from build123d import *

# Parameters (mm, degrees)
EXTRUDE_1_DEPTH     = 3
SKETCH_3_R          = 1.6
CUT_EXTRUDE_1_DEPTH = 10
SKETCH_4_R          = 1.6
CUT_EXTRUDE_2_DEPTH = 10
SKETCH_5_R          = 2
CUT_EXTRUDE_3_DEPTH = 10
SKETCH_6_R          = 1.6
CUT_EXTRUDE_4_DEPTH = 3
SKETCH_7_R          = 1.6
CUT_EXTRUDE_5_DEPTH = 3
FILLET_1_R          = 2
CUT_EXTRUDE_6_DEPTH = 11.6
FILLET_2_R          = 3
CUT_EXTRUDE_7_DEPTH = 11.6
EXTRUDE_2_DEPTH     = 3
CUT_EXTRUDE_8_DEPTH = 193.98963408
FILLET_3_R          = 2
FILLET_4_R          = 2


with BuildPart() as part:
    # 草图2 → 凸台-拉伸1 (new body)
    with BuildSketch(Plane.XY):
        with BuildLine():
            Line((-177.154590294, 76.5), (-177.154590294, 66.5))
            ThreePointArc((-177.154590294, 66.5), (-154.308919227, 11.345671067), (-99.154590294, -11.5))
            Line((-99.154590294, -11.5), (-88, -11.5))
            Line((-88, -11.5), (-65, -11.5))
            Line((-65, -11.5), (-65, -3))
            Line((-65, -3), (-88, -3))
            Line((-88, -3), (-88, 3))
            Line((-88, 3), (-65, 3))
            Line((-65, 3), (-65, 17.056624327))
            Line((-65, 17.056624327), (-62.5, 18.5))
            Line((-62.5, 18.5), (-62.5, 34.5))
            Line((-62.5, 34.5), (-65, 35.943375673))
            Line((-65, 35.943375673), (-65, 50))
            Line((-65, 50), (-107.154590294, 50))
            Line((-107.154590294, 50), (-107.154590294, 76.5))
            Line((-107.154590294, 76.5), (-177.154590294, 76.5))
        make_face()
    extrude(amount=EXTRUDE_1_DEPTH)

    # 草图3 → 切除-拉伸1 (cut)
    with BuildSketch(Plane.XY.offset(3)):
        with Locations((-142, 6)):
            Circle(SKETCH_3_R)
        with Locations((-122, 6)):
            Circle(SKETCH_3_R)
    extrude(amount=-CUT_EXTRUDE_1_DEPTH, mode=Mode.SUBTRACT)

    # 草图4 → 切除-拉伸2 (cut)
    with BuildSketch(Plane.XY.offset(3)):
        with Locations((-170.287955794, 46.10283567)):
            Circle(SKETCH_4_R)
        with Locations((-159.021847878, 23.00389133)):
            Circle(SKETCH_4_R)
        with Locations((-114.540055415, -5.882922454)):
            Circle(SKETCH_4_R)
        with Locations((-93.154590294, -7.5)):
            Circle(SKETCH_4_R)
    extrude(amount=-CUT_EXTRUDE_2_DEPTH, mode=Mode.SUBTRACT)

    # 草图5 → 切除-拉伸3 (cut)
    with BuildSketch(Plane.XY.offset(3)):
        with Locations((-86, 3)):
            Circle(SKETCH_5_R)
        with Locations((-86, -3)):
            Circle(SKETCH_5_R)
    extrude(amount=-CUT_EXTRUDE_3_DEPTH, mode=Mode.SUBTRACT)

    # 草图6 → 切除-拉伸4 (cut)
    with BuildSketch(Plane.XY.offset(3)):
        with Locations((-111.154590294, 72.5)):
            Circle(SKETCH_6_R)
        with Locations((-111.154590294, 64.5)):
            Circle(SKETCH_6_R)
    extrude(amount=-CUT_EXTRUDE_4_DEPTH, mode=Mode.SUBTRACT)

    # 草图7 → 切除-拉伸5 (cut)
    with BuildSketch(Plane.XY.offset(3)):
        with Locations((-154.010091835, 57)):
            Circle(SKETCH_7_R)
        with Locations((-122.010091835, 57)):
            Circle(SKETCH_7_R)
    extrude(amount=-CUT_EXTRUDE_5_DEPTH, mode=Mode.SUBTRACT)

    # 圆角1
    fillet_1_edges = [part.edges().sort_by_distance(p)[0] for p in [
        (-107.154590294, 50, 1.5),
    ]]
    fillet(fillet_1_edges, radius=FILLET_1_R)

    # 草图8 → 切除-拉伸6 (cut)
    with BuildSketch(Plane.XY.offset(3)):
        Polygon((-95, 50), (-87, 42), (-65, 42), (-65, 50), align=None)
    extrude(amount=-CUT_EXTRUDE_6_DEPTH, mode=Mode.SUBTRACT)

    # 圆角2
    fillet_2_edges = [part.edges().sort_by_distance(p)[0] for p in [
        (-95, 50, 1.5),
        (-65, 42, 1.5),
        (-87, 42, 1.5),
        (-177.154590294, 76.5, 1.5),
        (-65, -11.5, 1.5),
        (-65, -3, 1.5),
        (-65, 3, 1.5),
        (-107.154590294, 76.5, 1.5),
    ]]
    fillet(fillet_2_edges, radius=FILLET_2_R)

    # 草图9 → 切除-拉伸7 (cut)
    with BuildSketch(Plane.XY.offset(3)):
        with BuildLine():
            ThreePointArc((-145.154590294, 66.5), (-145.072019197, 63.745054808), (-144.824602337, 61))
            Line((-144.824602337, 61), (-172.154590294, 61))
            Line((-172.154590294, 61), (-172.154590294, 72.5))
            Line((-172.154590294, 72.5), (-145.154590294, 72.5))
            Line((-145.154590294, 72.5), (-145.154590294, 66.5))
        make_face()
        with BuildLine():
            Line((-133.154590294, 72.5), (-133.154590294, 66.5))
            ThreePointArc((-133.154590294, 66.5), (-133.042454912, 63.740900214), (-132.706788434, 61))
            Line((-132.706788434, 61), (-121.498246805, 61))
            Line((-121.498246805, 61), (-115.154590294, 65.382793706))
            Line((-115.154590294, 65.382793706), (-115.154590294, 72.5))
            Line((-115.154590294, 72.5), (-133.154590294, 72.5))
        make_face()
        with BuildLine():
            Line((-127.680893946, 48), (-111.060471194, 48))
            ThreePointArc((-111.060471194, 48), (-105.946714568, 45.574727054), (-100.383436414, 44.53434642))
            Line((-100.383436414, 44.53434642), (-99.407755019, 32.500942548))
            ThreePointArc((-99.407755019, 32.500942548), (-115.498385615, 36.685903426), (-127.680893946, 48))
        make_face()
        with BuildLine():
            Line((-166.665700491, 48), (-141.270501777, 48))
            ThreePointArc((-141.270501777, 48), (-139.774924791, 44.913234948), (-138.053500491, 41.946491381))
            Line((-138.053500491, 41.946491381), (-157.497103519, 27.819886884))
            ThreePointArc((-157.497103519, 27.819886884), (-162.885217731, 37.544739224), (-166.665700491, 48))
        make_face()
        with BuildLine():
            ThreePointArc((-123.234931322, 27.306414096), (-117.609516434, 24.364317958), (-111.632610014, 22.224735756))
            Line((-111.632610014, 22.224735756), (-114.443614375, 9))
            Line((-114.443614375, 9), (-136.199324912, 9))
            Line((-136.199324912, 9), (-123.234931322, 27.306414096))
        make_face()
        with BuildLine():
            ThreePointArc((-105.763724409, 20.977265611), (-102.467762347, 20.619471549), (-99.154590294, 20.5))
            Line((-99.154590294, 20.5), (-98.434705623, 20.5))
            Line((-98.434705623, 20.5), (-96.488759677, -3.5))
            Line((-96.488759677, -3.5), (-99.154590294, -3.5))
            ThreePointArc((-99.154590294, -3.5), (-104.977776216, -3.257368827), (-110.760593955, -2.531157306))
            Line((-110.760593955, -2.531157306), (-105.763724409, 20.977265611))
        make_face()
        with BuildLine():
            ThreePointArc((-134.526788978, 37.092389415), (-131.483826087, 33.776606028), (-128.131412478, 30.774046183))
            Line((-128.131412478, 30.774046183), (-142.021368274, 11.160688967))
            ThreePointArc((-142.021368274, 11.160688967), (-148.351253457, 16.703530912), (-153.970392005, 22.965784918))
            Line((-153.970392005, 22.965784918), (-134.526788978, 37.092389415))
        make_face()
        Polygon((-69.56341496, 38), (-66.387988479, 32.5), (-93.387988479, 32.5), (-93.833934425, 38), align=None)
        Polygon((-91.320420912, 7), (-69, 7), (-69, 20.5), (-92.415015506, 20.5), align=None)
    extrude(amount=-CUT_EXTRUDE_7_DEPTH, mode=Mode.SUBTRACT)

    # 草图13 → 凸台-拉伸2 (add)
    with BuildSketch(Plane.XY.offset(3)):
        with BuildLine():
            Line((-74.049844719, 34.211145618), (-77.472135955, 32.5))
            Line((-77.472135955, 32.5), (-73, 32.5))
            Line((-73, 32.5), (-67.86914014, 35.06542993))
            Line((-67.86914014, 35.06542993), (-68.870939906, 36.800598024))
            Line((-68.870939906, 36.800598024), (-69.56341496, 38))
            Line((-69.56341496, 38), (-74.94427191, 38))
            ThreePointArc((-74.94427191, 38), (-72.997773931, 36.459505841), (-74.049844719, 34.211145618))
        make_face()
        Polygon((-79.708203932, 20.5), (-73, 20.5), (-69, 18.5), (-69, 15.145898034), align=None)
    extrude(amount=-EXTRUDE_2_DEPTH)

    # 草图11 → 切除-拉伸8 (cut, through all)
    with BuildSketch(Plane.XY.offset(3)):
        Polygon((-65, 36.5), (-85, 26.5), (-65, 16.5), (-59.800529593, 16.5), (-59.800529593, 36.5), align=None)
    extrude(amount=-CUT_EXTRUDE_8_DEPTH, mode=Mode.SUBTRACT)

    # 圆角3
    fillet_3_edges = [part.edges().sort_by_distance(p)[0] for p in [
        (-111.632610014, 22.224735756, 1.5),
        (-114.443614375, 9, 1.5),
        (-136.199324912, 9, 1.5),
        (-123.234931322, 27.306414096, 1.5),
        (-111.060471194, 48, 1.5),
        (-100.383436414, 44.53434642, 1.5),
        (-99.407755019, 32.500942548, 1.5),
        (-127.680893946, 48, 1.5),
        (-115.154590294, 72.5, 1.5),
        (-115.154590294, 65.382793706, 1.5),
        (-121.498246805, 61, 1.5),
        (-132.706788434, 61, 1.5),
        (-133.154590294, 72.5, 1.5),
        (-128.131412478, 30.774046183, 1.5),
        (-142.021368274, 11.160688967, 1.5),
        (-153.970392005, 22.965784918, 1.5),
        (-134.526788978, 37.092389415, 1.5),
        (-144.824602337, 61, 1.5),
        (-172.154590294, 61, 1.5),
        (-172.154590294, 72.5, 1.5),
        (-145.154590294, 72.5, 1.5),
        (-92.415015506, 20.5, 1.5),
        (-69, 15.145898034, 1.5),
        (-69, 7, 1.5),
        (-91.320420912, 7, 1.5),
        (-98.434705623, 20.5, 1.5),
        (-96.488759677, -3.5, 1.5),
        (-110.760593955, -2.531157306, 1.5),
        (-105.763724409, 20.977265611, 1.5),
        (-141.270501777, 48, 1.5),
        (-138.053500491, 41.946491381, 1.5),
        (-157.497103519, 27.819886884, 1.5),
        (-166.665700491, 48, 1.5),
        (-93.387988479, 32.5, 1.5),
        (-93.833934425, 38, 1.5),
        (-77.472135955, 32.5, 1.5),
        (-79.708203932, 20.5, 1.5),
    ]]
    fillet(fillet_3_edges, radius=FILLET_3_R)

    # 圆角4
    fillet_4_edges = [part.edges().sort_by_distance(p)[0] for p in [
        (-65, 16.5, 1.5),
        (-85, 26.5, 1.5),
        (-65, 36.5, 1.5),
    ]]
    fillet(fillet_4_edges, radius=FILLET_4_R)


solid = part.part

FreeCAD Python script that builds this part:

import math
import FreeCAD as App
import Part
import Sketcher
Q = App.Units.Quantity


def edges_at(feature, points):
    """Names of the edges that pass closest to the given points."""
    edges = feature.Shape.Edges
    near = lambda p: min(range(len(edges)), key=lambda i: edges[i].distToShape(Part.Vertex(*p))[0])
    return sorted({f"Edge{near(p) + 1}" for p in points})

doc = App.newDocument("Part")
body = doc.addObject("PartDesign::Body", "Body")

# Sketch on XY plane
sketch1 = body.newObject("Sketcher::SketchObject", "Sketch")
sketch1.AttachmentSupport = (doc.getObject("XY_Plane"), [""])
sketch1.MapMode = "FlatFace"
sketch1.addGeometry(Part.LineSegment(App.Vector(-177.2, 76.5, 0), App.Vector(-177.2, 66.5, 0)), False)
sketch1.addGeometry(Part.ArcOfCircle(Part.Circle(App.Vector(-99.2, 66.5, 0), App.Vector(0, 0, 1), 78), math.radians(180), math.radians(270)), False)
sketch1.addGeometry(Part.LineSegment(App.Vector(-99.2, -11.5, 0), App.Vector(-65, -11.5, 0)), False)
sketch1.addGeometry(Part.LineSegment(App.Vector(-65, -11.5, 0), App.Vector(-65, -3, 0)), False)
sketch1.addGeometry(Part.LineSegment(App.Vector(-65, -3, 0), App.Vector(-88, -3, 0)), False)
sketch1.addGeometry(Part.LineSegment(App.Vector(-88, -3, 0), App.Vector(-88, 3, 0)), False)
sketch1.addGeometry(Part.LineSegment(App.Vector(-88, 3, 0), App.Vector(-65, 3, 0)), False)
sketch1.addGeometry(Part.LineSegment(App.Vector(-65, 3, 0), App.Vector(-65, 17.1, 0)), False)
sketch1.addGeometry(Part.LineSegment(App.Vector(-65, 17.1, 0), App.Vector(-62.5, 18.5, 0)), False)
sketch1.addGeometry(Part.LineSegment(App.Vector(-62.5, 18.5, 0), App.Vector(-62.5, 34.5, 0)), False)
sketch1.addGeometry(Part.LineSegment(App.Vector(-62.5, 34.5, 0), App.Vector(-65, 35.9, 0)), False)
sketch1.addGeometry(Part.LineSegment(App.Vector(-65, 35.9, 0), App.Vector(-65, 50, 0)), False)
sketch1.addGeometry(Part.LineSegment(App.Vector(-65, 50, 0), App.Vector(-107.2, 50, 0)), False)
sketch1.addGeometry(Part.LineSegment(App.Vector(-107.2, 50, 0), App.Vector(-107.2, 76.5, 0)), False)
sketch1.addGeometry(Part.LineSegment(App.Vector(-107.2, 76.5, 0), App.Vector(-177.2, 76.5, 0)), False)
sketch1.addConstraint(Sketcher.Constraint("Tangent", 0, 2, 1, 1))
sketch1.addConstraint(Sketcher.Constraint("Tangent", 1, 2, 2, 1))
sketch1.addConstraint(Sketcher.Constraint("Coincident", 2, 2, 3, 1))
sketch1.addConstraint(Sketcher.Constraint("Coincident", 3, 2, 4, 1))
sketch1.addConstraint(Sketcher.Constraint("Coincident", 4, 2, 5, 1))
sketch1.addConstraint(Sketcher.Constraint("Coincident", 5, 2, 6, 1))
sketch1.addConstraint(Sketcher.Constraint("Coincident", 6, 2, 7, 1))
sketch1.addConstraint(Sketcher.Constraint("Coincident", 7, 2, 8, 1))
sketch1.addConstraint(Sketcher.Constraint("Coincident", 8, 2, 9, 1))
sketch1.addConstraint(Sketcher.Constraint("Coincident", 9, 2, 10, 1))
sketch1.addConstraint(Sketcher.Constraint("Coincident", 10, 2, 11, 1))
sketch1.addConstraint(Sketcher.Constraint("Coincident", 11, 2, 12, 1))
sketch1.addConstraint(Sketcher.Constraint("Coincident", 12, 2, 13, 1))
sketch1.addConstraint(Sketcher.Constraint("Coincident", 13, 2, 14, 1))
sketch1.addConstraint(Sketcher.Constraint("Coincident", 14, 2, 0, 1))
sketch1.addConstraint(Sketcher.Constraint("Vertical", 0))
sketch1.addConstraint(Sketcher.Constraint("Horizontal", 2))
sketch1.addConstraint(Sketcher.Constraint("Vertical", 3))
sketch1.addConstraint(Sketcher.Constraint("Horizontal", 4))
sketch1.addConstraint(Sketcher.Constraint("Vertical", 5))
sketch1.addConstraint(Sketcher.Constraint("Horizontal", 6))
sketch1.addConstraint(Sketcher.Constraint("Vertical", 7))
sketch1.addConstraint(Sketcher.Constraint("Vertical", 9))
sketch1.addConstraint(Sketcher.Constraint("Vertical", 11))
sketch1.addConstraint(Sketcher.Constraint("Horizontal", 12))
sketch1.addConstraint(Sketcher.Constraint("Vertical", 13))
sketch1.addConstraint(Sketcher.Constraint("Horizontal", 14))
sketch1.addConstraint(Sketcher.Constraint("Symmetric", 3, 2, 6, 2, -1))
sketch1.addConstraint(Sketcher.Constraint("Vertical", 7, 2, 10, 2))
sketch1.addConstraint(Sketcher.Constraint("Equal", 7, 11))
sketch1.addConstraint(Sketcher.Constraint("Equal", 8, 10))
sketch1.addConstraint(Sketcher.Constraint("Radius", 1, 78.0))
sketch1.addConstraint(Sketcher.Constraint("DistanceX", 4, 2, 4, 1, 23.0))
sketch1.addConstraint(Sketcher.Constraint("DistanceX", 14, 2, 14, 1, 70.0))
sketch1.addConstraint(Sketcher.Constraint("DistanceY", 0, 2, 0, 1, 10.0))
sketch1.addConstraint(Sketcher.Constraint("DistanceY", 5, 1, 5, 2, 6.0))
sketch1.addConstraint(Sketcher.Constraint("DistanceY", 9, 1, 9, 2, 16.0))
sketch1.addConstraint(Sketcher.Constraint("Angle", 8, Q("30 deg")))
sketch1.addConstraint(Sketcher.Constraint("DistanceY", 3, 1, 3, 2, 8.5))
sketch1.addConstraint(Sketcher.Constraint("DistanceY", 13, 1, 13, 2, 26.5))
sketch1.addConstraint(Sketcher.Constraint("DistanceX", 2, 2, -1, 1, 65.0))
sketch1.addConstraint(Sketcher.Constraint("DistanceX", 8, 2, -1, 1, 62.5))
sketch1.addConstraint(Sketcher.Constraint("DistanceX", 2, 1, 2, 2, 34.15459))
pad1 = body.newObject("PartDesign::Pad", "Pad")
pad1.Profile = sketch1
pad1.Length = 3

# Sketch on XY plane
sketch2 = body.newObject("Sketcher::SketchObject", "Sketch001")
sketch2.AttachmentSupport = (doc.getObject("XY_Plane"), [""])
sketch2.MapMode = "FlatFace"
sketch2.AttachmentOffset = App.Placement(App.Vector(0, 0, 3), App.Rotation())
sketch2.addGeometry(Part.Circle(App.Vector(-142, 6, 0), App.Vector(0, 0, 1), 1.6), False)
sketch2.addGeometry(Part.Circle(App.Vector(-122, 6, 0), App.Vector(0, 0, 1), 1.6), False)
sketch2.addConstraint(Sketcher.Constraint("Equal", 0, 1))
sketch2.addConstraint(Sketcher.Constraint("Horizontal", 0, 3, 1, 3))
sketch2.addConstraint(Sketcher.Constraint("Diameter", 0, 3.2))
sketch2.addConstraint(Sketcher.Constraint("DistanceX", 0, 3, -1, 1, 142.0))
sketch2.addConstraint(Sketcher.Constraint("DistanceY", -1, 1, 0, 3, 6.0))
sketch2.addConstraint(Sketcher.Constraint("DistanceX", 1, 3, -1, 1, 122.0))
pocket1 = body.newObject("PartDesign::Pocket", "Pocket")
pocket1.Profile = sketch2
pocket1.Length = 10

# Sketch on XY plane
sketch3 = body.newObject("Sketcher::SketchObject", "Sketch002")
sketch3.AttachmentSupport = (doc.getObject("XY_Plane"), [""])
sketch3.MapMode = "FlatFace"
sketch3.AttachmentOffset = App.Placement(App.Vector(0, 0, 3), App.Rotation())
sketch3.addGeometry(Part.Circle(App.Vector(-170.3, 46.1, 0), App.Vector(0, 0, 1), 1.6), False)
sketch3.addGeometry(Part.Circle(App.Vector(-159, 23, 0), App.Vector(0, 0, 1), 1.6), False)
sketch3.addGeometry(Part.Circle(App.Vector(-114.5, -5.9, 0), App.Vector(0, 0, 1), 1.6), False)
sketch3.addGeometry(Part.Circle(App.Vector(-93.2, -7.5, 0), App.Vector(0, 0, 1), 1.6), False)
sketch3.addConstraint(Sketcher.Constraint("Equal", 0, 1))
sketch3.addConstraint(Sketcher.Constraint("Equal", 1, 2))
sketch3.addConstraint(Sketcher.Constraint("Equal", 2, 3))
sketch3.addConstraint(Sketcher.Constraint("Diameter", 0, 3.2))
sketch3.addConstraint(Sketcher.Constraint("DistanceY", 3, 3, -1, 1, 7.5))
sketch3.addConstraint(Sketcher.Constraint("DistanceX", 0, 3, 2, 3, 55.7479))
sketch3.addConstraint(Sketcher.Constraint("DistanceY", -1, 1, 1, 3, 23.003891))
sketch3.addConstraint(Sketcher.Constraint("DistanceX", 3, 3, -1, 1, 93.15459))
sketch3.addConstraint(Sketcher.Constraint("DistanceY", 2, 3, 0, 3, 51.985758))
sketch3.addConstraint(Sketcher.Constraint("DistanceX", 0, 3, -1, 1, 170.287956))
sketch3.addConstraint(Sketcher.Constraint("DistanceY", -1, 1, 0, 3, 46.102836))
sketch3.addConstraint(Sketcher.Constraint("DistanceX", 1, 3, -1, 1, 159.021848))
pocket2 = body.newObject("PartDesign::Pocket", "Pocket001")
pocket2.Profile = sketch3
pocket2.Length = 10

# Sketch on XY plane
sketch4 = body.newObject("Sketcher::SketchObject", "Sketch003")
sketch4.AttachmentSupport = (doc.getObject("XY_Plane"), [""])
sketch4.MapMode = "FlatFace"
sketch4.AttachmentOffset = App.Placement(App.Vector(0, 0, 3), App.Rotation())
sketch4.addGeometry(Part.Circle(App.Vector(-86, 3, 0), App.Vector(0, 0, 1), 2), False)
sketch4.addGeometry(Part.Circle(App.Vector(-86, -3, 0), App.Vector(0, 0, 1), 2), False)
sketch4.addConstraint(Sketcher.Constraint("Equal", 0, 1))
sketch4.addConstraint(Sketcher.Constraint("Symmetric", 0, 3, 1, 3, -1))
sketch4.addConstraint(Sketcher.Constraint("Diameter", 0, 4.0))
sketch4.addConstraint(Sketcher.Constraint("DistanceX", 0, 3, -1, 1, 86.0))
sketch4.addConstraint(Sketcher.Constraint("DistanceY", -1, 1, 0, 3, 3.0))
pocket3 = body.newObject("PartDesign::Pocket", "Pocket002")
pocket3.Profile = sketch4
pocket3.Length = 10

# Sketch on XY plane
sketch5 = body.newObject("Sketcher::SketchObject", "Sketch004")
sketch5.AttachmentSupport = (doc.getObject("XY_Plane"), [""])
sketch5.MapMode = "FlatFace"
sketch5.AttachmentOffset = App.Placement(App.Vector(0, 0, 3), App.Rotation())
sketch5.addGeometry(Part.Circle(App.Vector(-111.2, 72.5, 0), App.Vector(0, 0, 1), 1.6), False)
sketch5.addGeometry(Part.Circle(App.Vector(-111.2, 64.5, 0), App.Vector(0, 0, 1), 1.6), False)
sketch5.addConstraint(Sketcher.Constraint("Equal", 0, 1))
sketch5.addConstraint(Sketcher.Constraint("Vertical", 0, 3, 1, 3))
sketch5.addConstraint(Sketcher.Constraint("Diameter", 0, 3.2))
sketch5.addConstraint(Sketcher.Constraint("DistanceY", 1, 3, 0, 3, 8.0))
sketch5.addConstraint(Sketcher.Constraint("DistanceY", -1, 1, 0, 3, 72.5))
sketch5.addConstraint(Sketcher.Constraint("DistanceX", 0, 3, -1, 1, 111.15459))
pocket4 = body.newObject("PartDesign::Pocket", "Pocket003")
pocket4.Profile = sketch5
pocket4.Length = 3

# Sketch on XY plane
sketch6 = body.newObject("Sketcher::SketchObject", "Sketch005")
sketch6.AttachmentSupport = (doc.getObject("XY_Plane"), [""])
sketch6.MapMode = "FlatFace"
sketch6.AttachmentOffset = App.Placement(App.Vector(0, 0, 3), App.Rotation())
sketch6.addGeometry(Part.Circle(App.Vector(-154, 57, 0), App.Vector(0, 0, 1), 1.6), False)
sketch6.addGeometry(Part.Circle(App.Vector(-122, 57, 0), App.Vector(0, 0, 1), 1.6), False)
sketch6.addConstraint(Sketcher.Constraint("Equal", 0, 1))
sketch6.addConstraint(Sketcher.Constraint("Horizontal", 0, 3, 1, 3))
sketch6.addConstraint(Sketcher.Constraint("Diameter", 0, 3.2))
sketch6.addConstraint(Sketcher.Constraint("DistanceY", -1, 1, 0, 3, 57.0))
sketch6.addConstraint(Sketcher.Constraint("DistanceX", 0, 3, 1, 3, 32.0))
sketch6.addConstraint(Sketcher.Constraint("DistanceX", 0, 3, -1, 1, 154.010092))
pocket5 = body.newObject("PartDesign::Pocket", "Pocket004")
pocket5.Profile = sketch6
pocket5.Length = 3
doc.recompute()

fillet = body.newObject("PartDesign::Fillet", "Fillet")
fillet.Base = (pocket5, edges_at(pocket5, [(-107.155, 50, 1.5)]))
fillet.Radius = 2

# Sketch on XY plane
sketch7 = body.newObject("Sketcher::SketchObject", "Sketch006")
sketch7.AttachmentSupport = (doc.getObject("XY_Plane"), [""])
sketch7.MapMode = "FlatFace"
sketch7.AttachmentOffset = App.Placement(App.Vector(0, 0, 3), App.Rotation())
sketch7.addGeometry(Part.LineSegment(App.Vector(-95, 50, 0), App.Vector(-87, 42, 0)), False)
sketch7.addGeometry(Part.LineSegment(App.Vector(-87, 42, 0), App.Vector(-65, 42, 0)), False)
sketch7.addGeometry(Part.LineSegment(App.Vector(-65, 42, 0), App.Vector(-65, 50, 0)), False)
sketch7.addGeometry(Part.LineSegment(App.Vector(-65, 50, 0), App.Vector(-95, 50, 0)), False)
sketch7.addConstraint(Sketcher.Constraint("Coincident", 0, 2, 1, 1))
sketch7.addConstraint(Sketcher.Constraint("Coincident", 1, 2, 2, 1))
sketch7.addConstraint(Sketcher.Constraint("Coincident", 2, 2, 3, 1))
sketch7.addConstraint(Sketcher.Constraint("Coincident", 3, 2, 0, 1))
sketch7.addConstraint(Sketcher.Constraint("Horizontal", 1))
sketch7.addConstraint(Sketcher.Constraint("Vertical", 2))
sketch7.addConstraint(Sketcher.Constraint("Horizontal", 3))
sketch7.addConstraint(Sketcher.Constraint("DistanceX", 1, 1, 1, 2, 22.0))
sketch7.addConstraint(Sketcher.Constraint("DistanceX", 3, 2, 3, 1, 30.0))
sketch7.addConstraint(Sketcher.Constraint("DistanceY", 2, 1, 2, 2, 8.0))
sketch7.addConstraint(Sketcher.Constraint("DistanceX", 0, 2, -1, 1, 87.0))
sketch7.addConstraint(Sketcher.Constraint("DistanceY", -1, 1, 0, 2, 42.0))
pocket6 = body.newObject("PartDesign::Pocket", "Pocket005")
pocket6.Profile = sketch7
pocket6.Length = 11.6
doc.recompute()

fillet2 = body.newObject("PartDesign::Fillet", "Fillet001")
fillet2.Base = (pocket6, edges_at(pocket6, [
    (-95, 50, 1.5),
    (-65, 42, 1.5),
    (-87, 42, 1.5),
    (-177.155, 76.5, 1.5),
    (-65, -11.5, 1.5),
    (-65, -3, 1.5),
    (-65, 3, 1.5),
    (-107.155, 76.5, 1.5),
]))
fillet2.Radius = 3

# Sketch on XY plane
sketch8 = body.newObject("Sketcher::SketchObject", "Sketch007")
sketch8.AttachmentSupport = (doc.getObject("XY_Plane"), [""])
sketch8.MapMode = "FlatFace"
sketch8.AttachmentOffset = App.Placement(App.Vector(0, 0, 3), App.Rotation())
sketch8.addGeometry(Part.ArcOfCircle(Part.Circle(App.Vector(-99.2, 66.5, 0), App.Vector(0, 0, 1), 46), math.radians(180), math.radians(186.87)), False)
sketch8.addGeometry(Part.LineSegment(App.Vector(-145.2, 66.5, 0), App.Vector(-145.2, 72.5, 0)), False)
sketch8.addGeometry(Part.LineSegment(App.Vector(-145.2, 72.5, 0), App.Vector(-172.2, 72.5, 0)), False)
sketch8.addGeometry(Part.LineSegment(App.Vector(-172.2, 72.5, 0), App.Vector(-172.2, 61, 0)), False)
sketch8.addGeometry(Part.LineSegment(App.Vector(-172.2, 61, 0), App.Vector(-144.8, 61, 0)), False)
sketch8.addGeometry(Part.LineSegment(App.Vector(-133.2, 72.5, 0), App.Vector(-133.2, 66.5, 0)), False)
sketch8.addGeometry(Part.ArcOfCircle(Part.Circle(App.Vector(-99.2, 66.5, 0), App.Vector(0, 0, 1), 34), math.radians(-180), math.radians(-170.69)), False)
sketch8.addGeometry(Part.LineSegment(App.Vector(-132.7, 61, 0), App.Vector(-121.5, 61, 0)), False)
sketch8.addGeometry(Part.LineSegment(App.Vector(-121.5, 61, 0), App.Vector(-115.2, 65.4, 0)), False)
sketch8.addGeometry(Part.LineSegment(App.Vector(-115.2, 65.4, 0), App.Vector(-115.2, 72.5, 0)), False)
sketch8.addGeometry(Part.LineSegment(App.Vector(-115.2, 72.5, 0), App.Vector(-133.2, 72.5, 0)), False)
sketch8.addGeometry(Part.LineSegment(App.Vector(-111.1, 48, 0), App.Vector(-127.7, 48, 0)), False)
sketch8.addGeometry(Part.ArcOfCircle(Part.Circle(App.Vector(-99.2, 66.5, 0), App.Vector(0, 0, 1), 34), math.radians(-147), math.radians(-90)), False)
sketch8.addGeometry(Part.LineSegment(App.Vector(-99.4, 32.5, 0), App.Vector(-100.4, 44.5, 0)), False)
sketch8.addGeometry(Part.ArcOfCircle(Part.Circle(App.Vector(-99.2, 66.5, 0), App.Vector(0, 0, 1), 22), math.radians(-123), math.radians(-93)), False)
sketch8.addGeometry(Part.LineSegment(App.Vector(-141.3, 48, 0), App.Vector(-166.7, 48, 0)), False)
sketch8.addGeometry(Part.ArcOfCircle(Part.Circle(App.Vector(-99.2, 66.5, 0), App.Vector(0, 0, 1), 70), math.radians(-164.68), math.radians(-146.46)), False)
sketch8.addGeometry(Part.LineSegment(App.Vector(-157.5, 27.8, 0), App.Vector(-138.1, 41.9, 0)), False)
sketch8.addGeometry(Part.ArcOfCircle(Part.Circle(App.Vector(-99.2, 66.5, 0), App.Vector(0, 0, 1), 46), math.radians(-156.29), math.radians(-147.74)), False)
sketch8.addGeometry(Part.ArcOfCircle(Part.Circle(App.Vector(-99.2, 66.5, 0), App.Vector(0, 0, 1), 46), math.radians(-121.57), math.radians(-105.74)), False)
sketch8.addGeometry(Part.LineSegment(App.Vector(-123.2, 27.3, 0), App.Vector(-136.2, 9, 0)), False)
sketch8.addGeometry(Part.LineSegment(App.Vector(-136.2, 9, 0), App.Vector(-114.4, 9, 0)), False)
sketch8.addGeometry(Part.LineSegment(App.Vector(-114.4, 9, 0), App.Vector(-111.6, 22.2, 0)), False)
sketch8.addGeometry(Part.ArcOfCircle(Part.Circle(App.Vector(-99.2, 66.5, 0), App.Vector(0, 0, 1), 46), math.radians(-98.26), math.radians(-90)), False)
sketch8.addGeometry(Part.LineSegment(App.Vector(-105.8, 21, 0), App.Vector(-110.8, -2.5, 0)), False)
sketch8.addGeometry(Part.ArcOfCircle(Part.Circle(App.Vector(-99.2, 66.5, 0), App.Vector(0, 0, 1), 70), math.radians(-99.54), math.radians(-90)), False)
sketch8.addGeometry(Part.LineSegment(App.Vector(-99.2, -3.5, 0), App.Vector(-96.5, -3.5, 0)), False)
sketch8.addGeometry(Part.LineSegment(App.Vector(-96.5, -3.5, 0), App.Vector(-98.4, 20.5, 0)), False)
sketch8.addGeometry(Part.LineSegment(App.Vector(-98.4, 20.5, 0), App.Vector(-99.2, 20.5, 0)), False)
sketch8.addGeometry(Part.ArcOfCircle(Part.Circle(App.Vector(-99.2, 66.5, 0), App.Vector(0, 0, 1), 46), math.radians(-140.26), math.radians(-129.05)), False)
sketch8.addGeometry(Part.LineSegment(App.Vector(-134.5, 37.1, 0), App.Vector(-154, 23, 0)), False)
sketch8.addGeometry(Part.ArcOfCircle(Part.Circle(App.Vector(-99.2, 66.5, 0), App.Vector(0, 0, 1), 70), math.radians(-141.54), math.radians(-127.76)), False)
sketch8.addGeometry(Part.LineSegment(App.Vector(-142, 11.2, 0), App.Vector(-128.1, 30.8, 0)), False)
sketch8.addGeometry(Part.LineSegment(App.Vector(-66.4, 32.5, 0), App.Vector(-69.6, 38, 0)), False)
sketch8.addGeometry(Part.LineSegment(App.Vector(-69.6, 38, 0), App.Vector(-93.8, 38, 0)), False)
sketch8.addGeometry(Part.LineSegment(App.Vector(-93.8, 38, 0), App.Vector(-93.4, 32.5, 0)), False)
sketch8.addGeometry(Part.LineSegment(App.Vector(-93.4, 32.5, 0), App.Vector(-66.4, 32.5, 0)), False)
sketch8.addGeometry(Part.LineSegment(App.Vector(-91.3, 7, 0), App.Vector(-69, 7, 0)), False)
sketch8.addGeometry(Part.LineSegment(App.Vector(-69, 7, 0), App.Vector(-69, 20.5, 0)), False)
sketch8.addGeometry(Part.LineSegment(App.Vector(-69, 20.5, 0), App.Vector(-92.4, 20.5, 0)), False)
sketch8.addGeometry(Part.LineSegment(App.Vector(-92.4, 20.5, 0), App.Vector(-91.3, 7, 0)), False)
sketch8.addConstraint(Sketcher.Constraint("Tangent", 0, 1, 1, 1))
sketch8.addConstraint(Sketcher.Constraint("Coincident", 1, 2, 2, 1))
sketch8.addConstraint(Sketcher.Constraint("Coincident", 2, 2, 3, 1))
sketch8.addConstraint(Sketcher.Constraint("Coincident", 3, 2, 4, 1))
sketch8.addConstraint(Sketcher.Constraint("Coincident", 4, 2, 0, 2))
sketch8.addConstraint(Sketcher.Constraint("Tangent", 5, 2, 6, 1))
sketch8.addConstraint(Sketcher.Constraint("Coincident", 6, 2, 7, 1))
sketch8.addConstraint(Sketcher.Constraint("Coincident", 7, 2, 8, 1))
sketch8.addConstraint(Sketcher.Constraint("Coincident", 8, 2, 9, 1))
sketch8.addConstraint(Sketcher.Constraint("Coincident", 9, 2, 10, 1))
sketch8.addConstraint(Sketcher.Constraint("Coincident", 10, 2, 5, 1))
sketch8.addConstraint(Sketcher.Constraint("Coincident", 11, 2, 12, 1))
sketch8.addConstraint(Sketcher.Constraint("Coincident", 12, 2, 13, 1))
sketch8.addConstraint(Sketcher.Constraint("Coincident", 13, 2, 14, 2))
sketch8.addConstraint(Sketcher.Constraint("Coincident", 14, 1, 11, 1))
sketch8.addConstraint(Sketcher.Constraint("Coincident", 15, 2, 16, 1))
sketch8.addConstraint(Sketcher.Constraint("Coincident", 16, 2, 17, 1))
sketch8.addConstraint(Sketcher.Constraint("Coincident", 17, 2, 18, 2))
sketch8.addConstraint(Sketcher.Constraint("Coincident", 18, 1, 15, 1))
sketch8.addConstraint(Sketcher.Constraint("Coincident", 19, 1, 20, 1))
sketch8.addConstraint(Sketcher.Constraint("Coincident", 20, 2, 21, 1))
sketch8.addConstraint(Sketcher.Constraint("Coincident", 21, 2, 22, 1))
sketch8.addConstraint(Sketcher.Constraint("Coincident", 22, 2, 19, 2))
sketch8.addConstraint(Sketcher.Constraint("Coincident", 23, 1, 24, 1))
sketch8.addConstraint(Sketcher.Constraint("Coincident", 24, 2, 25, 1))
sketch8.addConstraint(Sketcher.Constraint("Tangent", 25, 2, 26, 1))
sketch8.addConstraint(Sketcher.Constraint("Coincident", 26, 2, 27, 1))
sketch8.addConstraint(Sketcher.Constraint("Coincident", 27, 2, 28, 1))
sketch8.addConstraint(Sketcher.Constraint("Tangent", 28, 2, 23, 2))
sketch8.addConstraint(Sketcher.Constraint("Coincident", 29, 1, 30, 1))
sketch8.addConstraint(Sketcher.Constraint("Coincident", 30, 2, 31, 1))
sketch8.addConstraint(Sketcher.Constraint("Coincident", 31, 2, 32, 1))
sketch8.addConstraint(Sketcher.Constraint("Coincident", 32, 2, 29, 2))
sketch8.addConstraint(Sketcher.Constraint("Coincident", 33, 2, 34, 1))
sketch8.addConstraint(Sketcher.Constraint("Coincident", 34, 2, 35, 1))
sketch8.addConstraint(Sketcher.Constraint("Coincident", 35, 2, 36, 1))
sketch8.addConstraint(Sketcher.Constraint("Coincident", 36, 2, 33, 1))
sketch8.addConstraint(Sketcher.Constraint("Coincident", 37, 2, 38, 1))
sketch8.addConstraint(Sketcher.Constraint("Coincident", 38, 2, 39, 1))
sketch8.addConstraint(Sketcher.Constraint("Coincident", 39, 2, 40, 1))
sketch8.addConstraint(Sketcher.Constraint("Coincident", 40, 2, 37, 1))
sketch8.addConstraint(Sketcher.Constraint("Vertical", 1))
sketch8.addConstraint(Sketcher.Constraint("Horizontal", 2))
sketch8.addConstraint(Sketcher.Constraint("Vertical", 3))
sketch8.addConstraint(Sketcher.Constraint("Horizontal", 4))
sketch8.addConstraint(Sketcher.Constraint("Vertical", 5))
sketch8.addConstraint(Sketcher.Constraint("Horizontal", 7))
sketch8.addConstraint(Sketcher.Constraint("Vertical", 9))
sketch8.addConstraint(Sketcher.Constraint("Horizontal", 10))
sketch8.addConstraint(Sketcher.Constraint("Horizontal", 11))
sketch8.addConstraint(Sketcher.Constraint("Horizontal", 15))
sketch8.addConstraint(Sketcher.Constraint("Horizontal", 21))
sketch8.addConstraint(Sketcher.Constraint("Horizontal", 26))
sketch8.addConstraint(Sketcher.Constraint("Horizontal", 28))
sketch8.addConstraint(Sketcher.Constraint("Horizontal", 34))
sketch8.addConstraint(Sketcher.Constraint("Horizontal", 36))
sketch8.addConstraint(Sketcher.Constraint("Horizontal", 37))
sketch8.addConstraint(Sketcher.Constraint("Vertical", 38))
sketch8.addConstraint(Sketcher.Constraint("Horizontal", 39))
sketch8.addConstraint(Sketcher.Constraint("Coincident", 6, 3, 0, 3))
sketch8.addConstraint(Sketcher.Constraint("Coincident", 12, 3, 0, 3))
sketch8.addConstraint(Sketcher.Constraint("Coincident", 14, 3, 0, 3))
sketch8.addConstraint(Sketcher.Constraint("Coincident", 16, 3, 0, 3))
sketch8.addConstraint(Sketcher.Constraint("Coincident", 18, 3, 0, 3))
sketch8.addConstraint(Sketcher.Constraint("Coincident", 19, 3, 0, 3))
sketch8.addConstraint(Sketcher.Constraint("Coincident", 23, 3, 0, 3))
sketch8.addConstraint(Sketcher.Constraint("Coincident", 25, 3, 0, 3))
sketch8.addConstraint(Sketcher.Constraint("Coincident", 29, 3, 0, 3))
sketch8.addConstraint(Sketcher.Constraint("Coincident", 31, 3, 0, 3))
sketch8.addConstraint(Sketcher.Constraint("Equal", 6, 12))
sketch8.addConstraint(Sketcher.Constraint("Equal", 0, 18))
sketch8.addConstraint(Sketcher.Constraint("Equal", 18, 19))
sketch8.addConstraint(Sketcher.Constraint("Equal", 19, 23))
sketch8.addConstraint(Sketcher.Constraint("Equal", 16, 25))
sketch8.addConstraint(Sketcher.Constraint("Equal", 23, 29))
sketch8.addConstraint(Sketcher.Constraint("Equal", 25, 31))
sketch8.addConstraint(Sketcher.Constraint("Parallel", 22, 24))
sketch8.addConstraint(Sketcher.Constraint("Parallel", 13, 27))
sketch8.addConstraint(Sketcher.Constraint("Parallel", 17, 30))
sketch8.addConstraint(Sketcher.Constraint("Parallel", 20, 32))
sketch8.addConstraint(Sketcher.Constraint("Parallel", 27, 35))
sketch8.addConstraint(Sketcher.Constraint("Parallel", 35, 40))
sketch8.addConstraint(Sketcher.Constraint("Horizontal", 4, 2, 6, 2))
sketch8.addConstraint(Sketcher.Constraint("Horizontal", 2, 2, 9, 2))
sketch8.addConstraint(Sketcher.Constraint("Horizontal", 14, 1, 15, 2))
sketch8.addConstraint(Sketcher.Constraint("Horizontal", 28, 2, 38, 2))
sketch8.addConstraint(Sketcher.Constraint("Equal", 2, 36))
sketch8.addConstraint(Sketcher.Constraint("Equal", 17, 24))
sketch8.addConstraint(Sketcher.Constraint("Equal", 24, 30))
sketch8.addConstraint(Sketcher.Constraint("Equal", 30, 32))
sketch8.addConstraint(Sketcher.Constraint("Radius", 0, 46.0))
sketch8.addConstraint(Sketcher.Constraint("Radius", 6, 34.0))
sketch8.addConstraint(Sketcher.Constraint("Radius", 14, 22.0))
sketch8.addConstraint(Sketcher.Constraint("Radius", 16, 70.0))
sketch8.addConstraint(Sketcher.Constraint("DistanceX", 2, 2, 2, 1, 27.0))
sketch8.addConstraint(Sketcher.Constraint("DistanceX", 10, 2, 10, 1, 18.0))
sketch8.addConstraint(Sketcher.Constraint("DistanceY", 1, 1, 1, 2, 6.0))
sketch8.addConstraint(Sketcher.Constraint("Angle", 17, Q("36 deg")))
sketch8.addConstraint(Sketcher.Constraint("Angle", 22, Q("78 deg")))
sketch8.addConstraint(Sketcher.Constraint("Angle", 33, Q("120 deg")))
sketch8.addConstraint(Sketcher.Constraint("DistanceY", 3, 2, 3, 1, 11.5))
sketch8.addConstraint(Sketcher.Constraint("DistanceY", 38, 1, 38, 2, 13.5))
sketch8.addConstraint(Sketcher.Constraint("DistanceY", -1, 1, 3, 2, 61.0))
sketch8.addConstraint(Sketcher.Constraint("DistanceY", -1, 1, 11, 2, 48.0))
sketch8.addConstraint(Sketcher.Constraint("DistanceY", -1, 1, 20, 2, 9.0))
sketch8.addConstraint(Sketcher.Constraint("DistanceY", -1, 1, 33, 2, 38.0))
sketch8.addConstraint(Sketcher.Constraint("DistanceX", 37, 2, -1, 1, 69.0))
sketch8.addConstraint(Sketcher.Constraint("DistanceY", 27, 2, 35, 2, 12.0))
sketch8.addConstraint(Sketcher.Constraint("DistanceX", 29, 1, 6, 2, 1.820001))
sketch8.addConstraint(Sketcher.Constraint("DistanceX", 7, 1, 7, 2, 11.208542))
sketch8.addConstraint(Sketcher.Constraint("DistanceX", 21, 1, 21, 2, 21.755711))
sketch8.addConstraint(Sketcher.Constraint("DistanceX", 26, 1, 26, 2, 2.665831))
sketch8.addConstraint(Sketcher.Constraint("DistanceX", 34, 2, 34, 1, 24.270519))
sketch8.addConstraint(Sketcher.Constraint("DistanceX", 37, 1, 37, 2, 22.320421))
sketch8.addConstraint(Sketcher.Constraint("DistanceX", 15, 2, -1, 1, 166.6657))
sketch8.addConstraint(Sketcher.Constraint("DistanceY", 31, 2, 29, 1, 25.9317))
sketch8.addConstraint(Sketcher.Constraint("DistanceX", 13, 2, 34, 2, 6.549502))
sketch8.addConstraint(Sketcher.Constraint("DistanceX", 28, 2, 35, 2, 5.766602))
sketch8.addConstraint(Sketcher.Constraint("Distance", 8, 7.710438))
sketch8.addConstraint(Sketcher.Constraint("DistanceX", 19, 1, -1, 1, 123.234931))
pocket7 = body.newObject("PartDesign::Pocket", "Pocket006")
pocket7.Profile = sketch8
pocket7.Length = 11.6

# Sketch on XY plane
sketch9 = body.newObject("Sketcher::SketchObject", "Sketch008")
sketch9.AttachmentSupport = (doc.getObject("XY_Plane"), [""])
sketch9.MapMode = "FlatFace"
sketch9.AttachmentOffset = App.Placement(App.Vector(0, 0, 3), App.Rotation())
sketch9.addGeometry(Part.LineSegment(App.Vector(-74, 34.2, 0), App.Vector(-77.5, 32.5, 0)), False)
sketch9.addGeometry(Part.LineSegment(App.Vector(-77.5, 32.5, 0), App.Vector(-73, 32.5, 0)), False)
sketch9.addGeometry(Part.LineSegment(App.Vector(-73, 32.5, 0), App.Vector(-67.9, 35.1, 0)), False)
sketch9.addGeometry(Part.LineSegment(App.Vector(-67.9, 35.1, 0), App.Vector(-68.9, 36.8, 0)), False)
sketch9.addGeometry(Part.LineSegment(App.Vector(-68.9, 36.8, 0), App.Vector(-69.6, 38, 0)), False)
sketch9.addGeometry(Part.LineSegment(App.Vector(-69.6, 38, 0), App.Vector(-74.9, 38, 0)), False)
sketch9.addGeometry(Part.ArcOfCircle(Part.Circle(App.Vector(-74.9, 36, 0), App.Vector(0, 0, 1), 2), math.radians(-63), math.radians(90)), False)
sketch9.addGeometry(Part.LineSegment(App.Vector(-73, 20.5, 0), App.Vector(-79.7, 20.5, 0)), False)
sketch9.addGeometry(Part.LineSegment(App.Vector(-79.7, 20.5, 0), App.Vector(-69, 15.1, 0)), False)
sketch9.addGeometry(Part.LineSegment(App.Vector(-69, 15.1, 0), App.Vector(-69, 18.5, 0)), False)
sketch9.addGeometry(Part.LineSegment(App.Vector(-69, 18.5, 0), App.Vector(-73, 20.5, 0)), False)
sketch9.addConstraint(Sketcher.Constraint("Coincident", 0, 2, 1, 1))
sketch9.addConstraint(Sketcher.Constraint("Coincident", 1, 2, 2, 1))
sketch9.addConstraint(Sketcher.Constraint("Coincident", 2, 2, 3, 1))
sketch9.addConstraint(Sketcher.Constraint("Coincident", 3, 2, 4, 1))
sketch9.addConstraint(Sketcher.Constraint("Coincident", 4, 2, 5, 1))
sketch9.addConstraint(Sketcher.Constraint("Tangent", 5, 2, 6, 2))
sketch9.addConstraint(Sketcher.Constraint("Tangent", 6, 1, 0, 1))
sketch9.addConstraint(Sketcher.Constraint("Coincident", 7, 2, 8, 1))
sketch9.addConstraint(Sketcher.Constraint("Coincident", 8, 2, 9, 1))
sketch9.addConstraint(Sketcher.Constraint("Coincident", 9, 2, 10, 1))
sketch9.addConstraint(Sketcher.Constraint("Coincident", 10, 2, 7, 1))
sketch9.addConstraint(Sketcher.Constraint("Horizontal", 1))
sketch9.addConstraint(Sketcher.Constraint("Horizontal", 5))
sketch9.addConstraint(Sketcher.Constraint("Horizontal", 7))
sketch9.addConstraint(Sketcher.Constraint("Vertical", 9))
sketch9.addConstraint(Sketcher.Constraint("Parallel", 0, 2))
sketch9.addConstraint(Sketcher.Constraint("Parallel", 3, 4))
sketch9.addConstraint(Sketcher.Constraint("Parallel", 8, 10))
sketch9.addConstraint(Sketcher.Constraint("Vertical", 1, 2, 10, 2))
sketch9.addConstraint(Sketcher.Constraint("Radius", 6, 2.0))
sketch9.addConstraint(Sketcher.Constraint("Angle", 3, Q("120 deg")))
sketch9.addConstraint(Sketcher.Constraint("DistanceY", -1, 1, 6, 3, 36.0))
sketch9.addConstraint(Sketcher.Constraint("DistanceX", 1, 2, -1, 1, 73.0))
sketch9.addConstraint(Sketcher.Constraint("DistanceX", 8, 2, -1, 1, 69.0))
sketch9.addConstraint(Sketcher.Constraint("DistanceY", 7, 2, 0, 2, 12.0))
sketch9.addConstraint(Sketcher.Constraint("DistanceY", 9, 2, 7, 2, 2.0))
sketch9.addConstraint(Sketcher.Constraint("DistanceY", -1, 1, 0, 2, 32.5))
sketch9.addConstraint(Sketcher.Constraint("DistanceY", 9, 1, 9, 2, 3.354102))
sketch9.addConstraint(Sketcher.Constraint("Distance", 3, 2.0036))
sketch9.addConstraint(Sketcher.Constraint("DistanceY", -1, 1, 3, 2, 36.800598))
sketch9.addConstraint(Sketcher.Constraint("DistanceX", 1, 1, 1, 2, 4.472136))
sketch9.addConstraint(Sketcher.Constraint("DistanceX", 5, 2, 5, 1, 5.380857))
pad2 = body.newObject("PartDesign::Pad", "Pad001")
pad2.Profile = sketch9
pad2.Length = 3
pad2.Reversed = True

# Sketch on XY plane
sketch10 = body.newObject("Sketcher::SketchObject", "Sketch009")
sketch10.AttachmentSupport = (doc.getObject("XY_Plane"), [""])
sketch10.MapMode = "FlatFace"
sketch10.AttachmentOffset = App.Placement(App.Vector(0, 0, 3), App.Rotation())
sketch10.addGeometry(Part.LineSegment(App.Vector(-65, 36, 0), App.Vector(-85, 26, 0)), False)
sketch10.addGeometry(Part.LineSegment(App.Vector(-85, 26, 0), App.Vector(-65, 16, 0)), False)
sketch10.addGeometry(Part.LineSegment(App.Vector(-65, 16, 0), App.Vector(-60, 16, 0)), False)
sketch10.addGeometry(Part.LineSegment(App.Vector(-60, 16, 0), App.Vector(-60, 36, 0)), False)
sketch10.addGeometry(Part.LineSegment(App.Vector(-60, 36, 0), App.Vector(-65, 36, 0)), False)
sketch10.addConstraint(Sketcher.Constraint("Coincident", 0, 2, 1, 1))
sketch10.addConstraint(Sketcher.Constraint("Coincident", 1, 2, 2, 1))
sketch10.addConstraint(Sketcher.Constraint("Coincident", 2, 2, 3, 1))
sketch10.addConstraint(Sketcher.Constraint("Coincident", 3, 2, 4, 1))
sketch10.addConstraint(Sketcher.Constraint("Coincident", 4, 2, 0, 1))
sketch10.addConstraint(Sketcher.Constraint("Horizontal", 2))
sketch10.addConstraint(Sketcher.Constraint("Vertical", 3))
sketch10.addConstraint(Sketcher.Constraint("Horizontal", 4))
sketch10.addConstraint(Sketcher.Constraint("Vertical", 1, 2, 4, 2))
sketch10.addConstraint(Sketcher.Constraint("Equal", 0, 1))
sketch10.addConstraint(Sketcher.Constraint("DistanceY", 3, 1, 3, 2, 20.0))
sketch10.addConstraint(Sketcher.Constraint("DistanceX", 0, 2, -1, 1, 85.0))
sketch10.addConstraint(Sketcher.Constraint("DistanceX", 1, 2, -1, 1, 65.0))
sketch10.addConstraint(Sketcher.Constraint("DistanceY", -1, 1, 0, 2, 26.5))
sketch10.addConstraint(Sketcher.Constraint("DistanceX", 2, 1, 2, 2, 5.19947))
pocket8 = body.newObject("PartDesign::Pocket", "Pocket007")
pocket8.Profile = sketch10
pocket8.Type = "ThroughAll"
doc.recompute()

fillet3 = body.newObject("PartDesign::Fillet", "Fillet002")
fillet3.Base = (pocket8, edges_at(pocket8, [
    (-111.633, 22.225, 1.5),
    (-114.444, 9, 1.5),
    (-136.199, 9, 1.5),
    (-123.235, 27.306, 1.5),
    (-111.06, 48, 1.5),
    (-100.383, 44.534, 1.5),
    (-99.408, 32.501, 1.5),
    (-127.681, 48, 1.5),
    (-115.155, 72.5, 1.5),
    (-115.155, 65.383, 1.5),
    (-121.498, 61, 1.5),
    (-132.707, 61, 1.5),
    (-133.155, 72.5, 1.5),
    (-128.131, 30.774, 1.5),
    (-142.021, 11.161, 1.5),
    (-153.97, 22.966, 1.5),
    (-134.527, 37.092, 1.5),
    (-144.825, 61, 1.5),
    (-172.155, 61, 1.5),
    (-172.155, 72.5, 1.5),
    (-145.155, 72.5, 1.5),
    (-92.415, 20.5, 1.5),
    (-69, 15.146, 1.5),
    (-69, 7, 1.5),
    (-91.32, 7, 1.5),
    (-98.435, 20.5, 1.5),
    (-96.489, -3.5, 1.5),
    (-110.761, -2.531, 1.5),
    (-105.764, 20.977, 1.5),
    (-141.271, 48, 1.5),
    (-138.054, 41.946, 1.5),
    (-157.497, 27.82, 1.5),
    (-166.666, 48, 1.5),
    (-93.388, 32.5, 1.5),
    (-93.834, 38, 1.5),
    (-77.472, 32.5, 1.5),
    (-79.708, 20.5, 1.5),
]))
fillet3.Radius = 2
doc.recompute()

fillet4 = body.newObject("PartDesign::Fillet", "Fillet003")
fillet4.Base = (fillet3, edges_at(fillet3, [(-65, 16.5, 1.5), (-85, 26.5, 1.5), (-65, 36.5, 1.5)]))
fillet4.Radius = 2

doc.recompute()
